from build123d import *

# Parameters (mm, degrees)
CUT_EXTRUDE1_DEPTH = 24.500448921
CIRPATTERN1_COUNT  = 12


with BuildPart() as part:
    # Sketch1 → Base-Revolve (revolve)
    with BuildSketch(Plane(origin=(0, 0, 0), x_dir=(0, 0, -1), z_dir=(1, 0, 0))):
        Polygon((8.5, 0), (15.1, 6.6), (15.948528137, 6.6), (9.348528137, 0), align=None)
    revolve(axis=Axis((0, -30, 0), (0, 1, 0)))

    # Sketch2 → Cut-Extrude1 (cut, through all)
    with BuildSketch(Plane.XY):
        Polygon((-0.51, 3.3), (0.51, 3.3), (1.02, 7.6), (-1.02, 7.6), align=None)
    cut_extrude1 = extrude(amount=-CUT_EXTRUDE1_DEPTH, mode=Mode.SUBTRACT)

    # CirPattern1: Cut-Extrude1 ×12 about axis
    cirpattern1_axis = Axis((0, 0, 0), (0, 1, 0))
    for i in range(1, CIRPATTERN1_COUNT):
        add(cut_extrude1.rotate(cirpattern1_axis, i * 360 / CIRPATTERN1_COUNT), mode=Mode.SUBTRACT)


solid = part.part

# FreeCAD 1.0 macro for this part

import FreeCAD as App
import Part
import Sketcher
from FreeCAD import Vector
Q = App.Units.Quantity

doc = App.newDocument("Part")
body = doc.addObject("PartDesign::Body", "Body")

sketch1 = body.newObject("Sketcher::SketchObject", "Sketch")
sketch1.AttachmentSupport = (doc.getObject("YZ_Plane"), [""])
sketch1.MapMode = "FlatFace"
sketch1.addGeometry([
    Part.LineSegment(Vector(6.6, -15.1, 0), Vector(0, -8.5, 0)),
    Part.LineSegment(Vector(0, -8.5, 0), Vector(0, -9.3, 0)),
    Part.LineSegment(Vector(0, -9.3, 0), Vector(6.6, -15.9, 0)),
    Part.LineSegment(Vector(6.6, -15.9, 0), Vector(6.6, -15.1, 0)),
], False)
sketch1.addConstraint([
    Sketcher.Constraint("Coincident", 0, 2, 1, 1),
    Sketcher.Constraint("Coincident", 1, 2, 2, 1),
    Sketcher.Constraint("Coincident", 2, 2, 3, 1),
    Sketcher.Constraint("Coincident", 3, 2, 0, 1),
    Sketcher.Constraint("Vertical", 1),
    Sketcher.Constraint("Vertical", 3),
    Sketcher.Constraint("PointOnObject", 0, 2, -2),
    Sketcher.Constraint("Parallel", 0, 2),
    Sketcher.Constraint("Angle", 0, Q("135 deg")),
    Sketcher.Constraint("DistanceY", 0, 2, -1, 1, Q("8.5 mm")),
    Sketcher.Constraint("DistanceX", -1, 1, 2, 2, Q("6.6 mm")),
    Sketcher.Constraint("DistanceY", 1, 2, 1, 1, Q("0.848528 mm")),
])
revolution = body.newObject("PartDesign::Revolution", "Revolution")
revolution.Profile = sketch1
revolution.ReferenceAxis = (sketch1, ["H_Axis"])
revolution.Angle = 360

sketch2 = body.newObject("Sketcher::SketchObject", "Sketch001")
sketch2.AttachmentSupport = (doc.getObject("XY_Plane"), [""])
sketch2.MapMode = "FlatFace"
sketch2.addGeometry([
    Part.LineSegment(Vector(-0.5, 3.3, 0), Vector(0.5, 3.3, 0)),
    Part.LineSegment(Vector(0.5, 3.3, 0), Vector(1, 7.6, 0)),
    Part.LineSegment(Vector(1, 7.6, 0), Vector(-1, 7.6, 0)),
    Part.LineSegment(Vector(-1, 7.6, 0), Vector(-0.5, 3.3, 0)),
], False)
sketch2.addConstraint([
    Sketcher.Constraint("Coincident", 0, 2, 1, 1),
    Sketcher.Constraint("Coincident", 1, 2, 2, 1),
    Sketcher.Constraint("Coincident", 2, 2, 3, 1),
    Sketcher.Constraint("Coincident", 3, 2, 0, 1),
    Sketcher.Constraint("Horizontal", 0),
    Sketcher.Constraint("Horizontal", 2),
    Sketcher.Constraint("Equal", 1, 3),
    Sketcher.Constraint("DistanceX", 0, 1, 0, 2, Q("1.02 mm")),
    Sketcher.Constraint("DistanceX", 2, 2, 2, 1, Q("2.04 mm")),
    Sketcher.Constraint("DistanceY", -1, 1, 0, 2, Q("3.3 mm")),
    Sketcher.Constraint("DistanceY", -1, 1, 1, 2, Q("7.6 mm")),
    Sketcher.Constraint("DistanceX", -1, 1, 0, 2, Q("0.51 mm")),
])
pocket1 = body.newObject("PartDesign::Pocket", "Pocket")
pocket1.Profile = sketch2
pocket1.Type = "ThroughAll"
doc.recompute()

polarpattern = body.newObject("PartDesign::PolarPattern", "PolarPattern")
polarpattern.Originals = [pocket1]
polarpattern.Axis = (doc.getObject("Y_Axis"), [""])
polarpattern.Angle = 360
polarpattern.Occurrences = 12
body.Tip = polarpattern

doc.recompute()
